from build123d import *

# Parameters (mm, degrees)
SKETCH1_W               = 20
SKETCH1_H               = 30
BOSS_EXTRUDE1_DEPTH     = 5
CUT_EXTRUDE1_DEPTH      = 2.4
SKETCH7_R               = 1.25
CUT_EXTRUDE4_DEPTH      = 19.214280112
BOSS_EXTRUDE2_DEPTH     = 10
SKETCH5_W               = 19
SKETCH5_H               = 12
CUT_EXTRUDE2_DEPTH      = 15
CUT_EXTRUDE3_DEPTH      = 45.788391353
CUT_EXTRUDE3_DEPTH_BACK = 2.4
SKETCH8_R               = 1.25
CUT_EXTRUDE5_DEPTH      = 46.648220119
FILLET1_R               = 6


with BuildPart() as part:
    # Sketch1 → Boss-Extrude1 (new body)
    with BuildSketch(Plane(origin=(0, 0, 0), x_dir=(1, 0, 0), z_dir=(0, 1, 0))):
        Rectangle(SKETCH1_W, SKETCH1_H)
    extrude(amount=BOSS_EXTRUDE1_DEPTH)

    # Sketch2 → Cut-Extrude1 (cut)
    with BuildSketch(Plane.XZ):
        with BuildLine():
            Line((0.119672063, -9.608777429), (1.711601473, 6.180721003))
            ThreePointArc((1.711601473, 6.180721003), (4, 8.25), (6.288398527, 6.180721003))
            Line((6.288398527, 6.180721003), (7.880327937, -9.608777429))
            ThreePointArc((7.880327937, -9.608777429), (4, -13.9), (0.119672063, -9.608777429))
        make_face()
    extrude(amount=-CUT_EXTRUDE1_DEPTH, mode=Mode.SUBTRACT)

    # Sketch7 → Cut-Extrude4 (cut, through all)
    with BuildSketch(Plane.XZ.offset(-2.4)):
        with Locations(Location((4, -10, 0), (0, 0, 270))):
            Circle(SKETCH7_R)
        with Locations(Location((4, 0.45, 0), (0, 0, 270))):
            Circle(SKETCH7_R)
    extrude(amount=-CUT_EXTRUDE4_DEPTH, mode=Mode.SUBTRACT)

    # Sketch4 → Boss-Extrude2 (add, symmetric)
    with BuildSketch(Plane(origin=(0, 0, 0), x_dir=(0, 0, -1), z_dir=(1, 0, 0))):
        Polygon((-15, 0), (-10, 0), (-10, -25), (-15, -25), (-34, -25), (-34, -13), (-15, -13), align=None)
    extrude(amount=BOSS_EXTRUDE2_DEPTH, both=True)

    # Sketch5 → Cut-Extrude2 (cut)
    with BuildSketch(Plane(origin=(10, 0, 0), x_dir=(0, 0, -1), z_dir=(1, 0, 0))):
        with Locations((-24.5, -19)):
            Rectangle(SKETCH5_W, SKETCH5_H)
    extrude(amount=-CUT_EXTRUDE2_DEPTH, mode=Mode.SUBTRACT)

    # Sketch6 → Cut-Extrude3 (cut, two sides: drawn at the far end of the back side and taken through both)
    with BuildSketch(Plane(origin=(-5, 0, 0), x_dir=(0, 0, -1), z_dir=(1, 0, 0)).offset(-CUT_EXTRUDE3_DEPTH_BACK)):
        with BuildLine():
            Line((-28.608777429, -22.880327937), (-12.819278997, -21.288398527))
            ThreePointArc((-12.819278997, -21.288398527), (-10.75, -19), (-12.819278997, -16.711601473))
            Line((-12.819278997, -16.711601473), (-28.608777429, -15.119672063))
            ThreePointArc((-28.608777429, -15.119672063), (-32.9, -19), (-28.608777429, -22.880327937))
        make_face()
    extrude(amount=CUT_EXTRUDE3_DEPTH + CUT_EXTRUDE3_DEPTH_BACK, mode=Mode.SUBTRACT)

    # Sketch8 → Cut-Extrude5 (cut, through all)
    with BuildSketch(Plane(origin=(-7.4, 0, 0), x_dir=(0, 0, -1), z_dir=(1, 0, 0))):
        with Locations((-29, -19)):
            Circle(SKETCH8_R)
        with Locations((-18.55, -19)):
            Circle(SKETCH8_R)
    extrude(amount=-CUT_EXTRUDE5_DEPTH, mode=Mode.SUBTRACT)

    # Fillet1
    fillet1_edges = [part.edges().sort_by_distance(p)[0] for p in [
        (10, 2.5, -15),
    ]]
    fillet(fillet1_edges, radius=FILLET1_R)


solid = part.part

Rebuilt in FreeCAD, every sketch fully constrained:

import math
import FreeCAD as App
import Part
import Sketcher
from FreeCAD import Vector
Q = App.Units.Quantity


def edges_at(feature, points):
    """Names of the edges that pass closest to the given points."""
    edges = feature.Shape.Edges
    near = lambda p: min(range(len(edges)), key=lambda i: edges[i].distToShape(Part.Vertex(*p))[0])
    return sorted({f"Edge{near(p) + 1}" for p in points})


def add_polygon(sketch, points):
    """Adds a closed chain of lines whose ends are joined by coincident constraints."""
    first, n = sketch.GeometryCount, len(points)
    for a, b in zip(points, points[1:] + points[:1]):
        sketch.addGeometry(Part.LineSegment(App.Vector(*a, 0), App.Vector(*b, 0)), False)
    for i in range(n):
        sketch.addConstraint(Sketcher.Constraint("Coincident", first + i, 2, first + (i + 1) % n, 1))

doc = App.newDocument("Part")
body = doc.addObject("PartDesign::Body", "Body")

sketch1 = body.newObject("Sketcher::SketchObject", "Sketch")
sketch1.AttachmentSupport = (doc.getObject("XZ_Plane"), [""])
sketch1.MapMode = "FlatFace"
add_polygon(sketch1, [(-10, -15), (-10, 15), (10, 15), (10, -15)])
sketch1.addConstraint([
    Sketcher.Constraint("Vertical", 0),
    Sketcher.Constraint("Horizontal", 1),
    Sketcher.Constraint("Vertical", 2),
    Sketcher.Constraint("Horizontal", 3),
    Sketcher.Constraint("Symmetric", 0, 2, 2, 2, -1, 1),
    Sketcher.Constraint("DistanceX", 1, 1, 1, 2, Q("20 mm")),
    Sketcher.Constraint("DistanceY", 0, 1, 0, 2, Q("30 mm")),
])
pad1 = body.newObject("PartDesign::Pad", "Pad")
pad1.Profile = sketch1
pad1.Length = 5
pad1.Reversed = True

sketch2 = body.newObject("Sketcher::SketchObject", "Sketch001")
sketch2.AttachmentSupport = (doc.getObject("XZ_Plane"), [""])
sketch2.MapMode = "FlatFace"
sketch2.addGeometry([
    Part.LineSegment(Vector(1.7, 6.2, 0), Vector(0.1, -9.6, 0)),
    Part.ArcOfCircle(Part.Circle(Vector(4, -10, 0), Vector(0, 0, 1), 3.9), math.radians(174), math.radians(366)),
    Part.LineSegment(Vector(7.9, -9.6, 0), Vector(6.3, 6.2, 0)),
    Part.ArcOfCircle(Part.Circle(Vector(4, 6, 0), Vector(0, 0, 1), 2.3), math.radians(6), math.radians(174)),
], False)
sketch2.addConstraint([
    Sketcher.Constraint("Tangent", 0, 2, 1, 1),
    Sketcher.Constraint("Tangent", 1, 2, 2, 1),
    Sketcher.Constraint("Tangent", 2, 2, 3, 1),
    Sketcher.Constraint("Tangent", 3, 2, 0, 1),
    Sketcher.Constraint("Horizontal", 0, 2, 1, 2),
    Sketcher.Constraint("Radius", 1, Q("3.9 mm")),
    Sketcher.Constraint("Radius", 3, Q("2.3 mm")),
    Sketcher.Constraint("DistanceX", -1, 1, 1, 3, Q("4 mm")),
    Sketcher.Constraint("DistanceY", 1, 3, -1, 1, Q("10 mm")),
    Sketcher.Constraint("DistanceY", -1, 1, 3, 3, Q("5.95 mm")),
])
pocket1 = body.newObject("PartDesign::Pocket", "Pocket")
pocket1.Profile = sketch2
pocket1.Length = 2.4

sketch3 = body.newObject("Sketcher::SketchObject", "Sketch002")
sketch3.AttachmentSupport = (doc.getObject("XZ_Plane"), [""])
sketch3.MapMode = "FlatFace"
sketch3.AttachmentOffset = App.Placement(Vector(0, 0, -2.4), App.Rotation())
sketch3.addGeometry([
    Part.Circle(Vector(4, -10, 0), Vector(0, 0, 1), 1.2),
    Part.Circle(Vector(4, 0.5, 0), Vector(0, 0, 1), 1.2),
], False)
sketch3.addConstraint([
    Sketcher.Constraint("Equal", 0, 1),
    Sketcher.Constraint("Vertical", 0, 3, 1, 3),
    Sketcher.Constraint("Diameter", 0, Q("2.5 mm")),
    Sketcher.Constraint("DistanceX", -1, 1, 0, 3, Q("4 mm")),
    Sketcher.Constraint("DistanceY", 0, 3, -1, 1, Q("10 mm")),
    Sketcher.Constraint("DistanceY", -1, 1, 1, 3, Q("0.45 mm")),
])
pocket2 = body.newObject("PartDesign::Pocket", "Pocket001")
pocket2.Profile = sketch3
pocket2.Type = "ThroughAll"

sketch4 = body.newObject("Sketcher::SketchObject", "Sketch003")
sketch4.AttachmentSupport = (doc.getObject("YZ_Plane"), [""])
sketch4.MapMode = "FlatFace"
add_polygon(sketch4, [(0, 10), (0, 15), (-13, 15), (-13, 34), (-25, 34), (-25, 10)])
sketch4.addConstraint([
    Sketcher.Constraint("Vertical", 0),
    Sketcher.Constraint("Horizontal", 1),
    Sketcher.Constraint("Vertical", 2),
    Sketcher.Constraint("Horizontal", 3),
    Sketcher.Constraint("Vertical", 4),
    Sketcher.Constraint("Horizontal", 5),
    Sketcher.Constraint("PointOnObject", 0, 2, -2),
    Sketcher.Constraint("DistanceX", 1, 2, 1, 1, Q("13 mm")),
    Sketcher.Constraint("DistanceX", 3, 2, 3, 1, Q("12 mm")),
    Sketcher.Constraint("DistanceY", 0, 1, 0, 2, Q("5 mm")),
    Sketcher.Constraint("DistanceY", 2, 1, 2, 2, Q("19 mm")),
    Sketcher.Constraint("DistanceY", -1, 1, 0, 2, Q("15 mm")),
])
pad2 = body.newObject("PartDesign::Pad", "Pad001")
pad2.Profile = sketch4
pad2.Length = 20
pad2.Midplane = True

sketch5 = body.newObject("Sketcher::SketchObject", "Sketch004")
sketch5.AttachmentSupport = (doc.getObject("YZ_Plane"), [""])
sketch5.MapMode = "FlatFace"
sketch5.AttachmentOffset = App.Placement(Vector(0, 0, 10), App.Rotation())
add_polygon(sketch5, [(-13, 34), (-25, 34), (-25, 15), (-13, 15)])
sketch5.addConstraint([
    Sketcher.Constraint("Horizontal", 0),
    Sketcher.Constraint("Vertical", 1),
    Sketcher.Constraint("Horizontal", 2),
    Sketcher.Constraint("Vertical", 3),
    Sketcher.Constraint("DistanceX", 0, 2, 0, 1, Q("12 mm")),
    Sketcher.Constraint("DistanceY", 1, 2, 1, 1, Q("19 mm")),
    Sketcher.Constraint("DistanceX", 0, 2, -1, 1, Q("25 mm")),
    Sketcher.Constraint("DistanceY", -1, 1, 0, 2, Q("34 mm")),
])
pocket3 = body.newObject("PartDesign::Pocket", "Pocket002")
pocket3.Profile = sketch5
pocket3.Length = 15

sketch6 = body.newObject("Sketcher::SketchObject", "Sketch005")
sketch6.AttachmentSupport = (doc.getObject("YZ_Plane"), [""])
sketch6.MapMode = "FlatFace"
sketch6.AttachmentOffset = App.Placement(Vector(0, 0, -5), App.Rotation())
sketch6.addGeometry([
    Part.LineSegment(Vector(-22.9, 28.6, 0), Vector(-21.3, 12.8, 0)),
    Part.ArcOfCircle(Part.Circle(Vector(-19, 13.1, 0), Vector(0, 0, 1), 2.3), math.radians(-174), math.radians(-6)),
    Part.LineSegment(Vector(-16.7, 12.8, 0), Vector(-15.1, 28.6, 0)),
    Part.ArcOfCircle(Part.Circle(Vector(-19, 29, 0), Vector(0, 0, 1), 3.9), math.radians(-6), math.radians(186)),
], False)
sketch6.addConstraint([
    Sketcher.Constraint("Tangent", 0, 2, 1, 1),
    Sketcher.Constraint("Tangent", 1, 2, 2, 1),
    Sketcher.Constraint("Tangent", 2, 2, 3, 1),
    Sketcher.Constraint("Tangent", 3, 2, 0, 1),
    Sketcher.Constraint("Horizontal", 0, 2, 1, 2),
    Sketcher.Constraint("Radius", 1, Q("2.3 mm")),
    Sketcher.Constraint("Radius", 3, Q("3.9 mm")),
    Sketcher.Constraint("DistanceX", 1, 3, -1, 1, Q("19 mm")),
    Sketcher.Constraint("DistanceY", -1, 1, 3, 3, Q("29 mm")),
    Sketcher.Constraint("DistanceY", -1, 1, 1, 3, Q("13.05 mm")),
])
pocket4 = body.newObject("PartDesign::Pocket", "Pocket003")
pocket4.Profile = sketch6
pocket4.Type = "TwoLengths"
pocket4.Length = 45.788391
pocket4.Length2 = 2.4
pocket4.Reversed = True

sketch7 = body.newObject("Sketcher::SketchObject", "Sketch006")
sketch7.AttachmentSupport = (doc.getObject("YZ_Plane"), [""])
sketch7.MapMode = "FlatFace"
sketch7.AttachmentOffset = App.Placement(Vector(0, 0, -7.4), App.Rotation())
sketch7.addGeometry([
    Part.Circle(Vector(-19, 29, 0), Vector(0, 0, 1), 1.2),
    Part.Circle(Vector(-19, 18.6, 0), Vector(0, 0, 1), 1.2),
], False)
sketch7.addConstraint([
    Sketcher.Constraint("Equal", 0, 1),
    Sketcher.Constraint("Vertical", 0, 3, 1, 3),
    Sketcher.Constraint("Diameter", 0, Q("2.5 mm")),
    Sketcher.Constraint("DistanceX", 0, 3, -1, 1, Q("19 mm")),
    Sketcher.Constraint("DistanceY", -1, 1, 0, 3, Q("29 mm")),
    Sketcher.Constraint("DistanceY", -1, 1, 1, 3, Q("18.55 mm")),
])
pocket5 = body.newObject("PartDesign::Pocket", "Pocket004")
pocket5.Profile = sketch7
pocket5.Type = "ThroughAll"
doc.recompute()

fillet = body.newObject("PartDesign::Fillet", "Fillet")
fillet.Base = (pocket5, edges_at(pocket5, [(10, 2.5, -15)]))
fillet.Radius = 6

doc.recompute()
